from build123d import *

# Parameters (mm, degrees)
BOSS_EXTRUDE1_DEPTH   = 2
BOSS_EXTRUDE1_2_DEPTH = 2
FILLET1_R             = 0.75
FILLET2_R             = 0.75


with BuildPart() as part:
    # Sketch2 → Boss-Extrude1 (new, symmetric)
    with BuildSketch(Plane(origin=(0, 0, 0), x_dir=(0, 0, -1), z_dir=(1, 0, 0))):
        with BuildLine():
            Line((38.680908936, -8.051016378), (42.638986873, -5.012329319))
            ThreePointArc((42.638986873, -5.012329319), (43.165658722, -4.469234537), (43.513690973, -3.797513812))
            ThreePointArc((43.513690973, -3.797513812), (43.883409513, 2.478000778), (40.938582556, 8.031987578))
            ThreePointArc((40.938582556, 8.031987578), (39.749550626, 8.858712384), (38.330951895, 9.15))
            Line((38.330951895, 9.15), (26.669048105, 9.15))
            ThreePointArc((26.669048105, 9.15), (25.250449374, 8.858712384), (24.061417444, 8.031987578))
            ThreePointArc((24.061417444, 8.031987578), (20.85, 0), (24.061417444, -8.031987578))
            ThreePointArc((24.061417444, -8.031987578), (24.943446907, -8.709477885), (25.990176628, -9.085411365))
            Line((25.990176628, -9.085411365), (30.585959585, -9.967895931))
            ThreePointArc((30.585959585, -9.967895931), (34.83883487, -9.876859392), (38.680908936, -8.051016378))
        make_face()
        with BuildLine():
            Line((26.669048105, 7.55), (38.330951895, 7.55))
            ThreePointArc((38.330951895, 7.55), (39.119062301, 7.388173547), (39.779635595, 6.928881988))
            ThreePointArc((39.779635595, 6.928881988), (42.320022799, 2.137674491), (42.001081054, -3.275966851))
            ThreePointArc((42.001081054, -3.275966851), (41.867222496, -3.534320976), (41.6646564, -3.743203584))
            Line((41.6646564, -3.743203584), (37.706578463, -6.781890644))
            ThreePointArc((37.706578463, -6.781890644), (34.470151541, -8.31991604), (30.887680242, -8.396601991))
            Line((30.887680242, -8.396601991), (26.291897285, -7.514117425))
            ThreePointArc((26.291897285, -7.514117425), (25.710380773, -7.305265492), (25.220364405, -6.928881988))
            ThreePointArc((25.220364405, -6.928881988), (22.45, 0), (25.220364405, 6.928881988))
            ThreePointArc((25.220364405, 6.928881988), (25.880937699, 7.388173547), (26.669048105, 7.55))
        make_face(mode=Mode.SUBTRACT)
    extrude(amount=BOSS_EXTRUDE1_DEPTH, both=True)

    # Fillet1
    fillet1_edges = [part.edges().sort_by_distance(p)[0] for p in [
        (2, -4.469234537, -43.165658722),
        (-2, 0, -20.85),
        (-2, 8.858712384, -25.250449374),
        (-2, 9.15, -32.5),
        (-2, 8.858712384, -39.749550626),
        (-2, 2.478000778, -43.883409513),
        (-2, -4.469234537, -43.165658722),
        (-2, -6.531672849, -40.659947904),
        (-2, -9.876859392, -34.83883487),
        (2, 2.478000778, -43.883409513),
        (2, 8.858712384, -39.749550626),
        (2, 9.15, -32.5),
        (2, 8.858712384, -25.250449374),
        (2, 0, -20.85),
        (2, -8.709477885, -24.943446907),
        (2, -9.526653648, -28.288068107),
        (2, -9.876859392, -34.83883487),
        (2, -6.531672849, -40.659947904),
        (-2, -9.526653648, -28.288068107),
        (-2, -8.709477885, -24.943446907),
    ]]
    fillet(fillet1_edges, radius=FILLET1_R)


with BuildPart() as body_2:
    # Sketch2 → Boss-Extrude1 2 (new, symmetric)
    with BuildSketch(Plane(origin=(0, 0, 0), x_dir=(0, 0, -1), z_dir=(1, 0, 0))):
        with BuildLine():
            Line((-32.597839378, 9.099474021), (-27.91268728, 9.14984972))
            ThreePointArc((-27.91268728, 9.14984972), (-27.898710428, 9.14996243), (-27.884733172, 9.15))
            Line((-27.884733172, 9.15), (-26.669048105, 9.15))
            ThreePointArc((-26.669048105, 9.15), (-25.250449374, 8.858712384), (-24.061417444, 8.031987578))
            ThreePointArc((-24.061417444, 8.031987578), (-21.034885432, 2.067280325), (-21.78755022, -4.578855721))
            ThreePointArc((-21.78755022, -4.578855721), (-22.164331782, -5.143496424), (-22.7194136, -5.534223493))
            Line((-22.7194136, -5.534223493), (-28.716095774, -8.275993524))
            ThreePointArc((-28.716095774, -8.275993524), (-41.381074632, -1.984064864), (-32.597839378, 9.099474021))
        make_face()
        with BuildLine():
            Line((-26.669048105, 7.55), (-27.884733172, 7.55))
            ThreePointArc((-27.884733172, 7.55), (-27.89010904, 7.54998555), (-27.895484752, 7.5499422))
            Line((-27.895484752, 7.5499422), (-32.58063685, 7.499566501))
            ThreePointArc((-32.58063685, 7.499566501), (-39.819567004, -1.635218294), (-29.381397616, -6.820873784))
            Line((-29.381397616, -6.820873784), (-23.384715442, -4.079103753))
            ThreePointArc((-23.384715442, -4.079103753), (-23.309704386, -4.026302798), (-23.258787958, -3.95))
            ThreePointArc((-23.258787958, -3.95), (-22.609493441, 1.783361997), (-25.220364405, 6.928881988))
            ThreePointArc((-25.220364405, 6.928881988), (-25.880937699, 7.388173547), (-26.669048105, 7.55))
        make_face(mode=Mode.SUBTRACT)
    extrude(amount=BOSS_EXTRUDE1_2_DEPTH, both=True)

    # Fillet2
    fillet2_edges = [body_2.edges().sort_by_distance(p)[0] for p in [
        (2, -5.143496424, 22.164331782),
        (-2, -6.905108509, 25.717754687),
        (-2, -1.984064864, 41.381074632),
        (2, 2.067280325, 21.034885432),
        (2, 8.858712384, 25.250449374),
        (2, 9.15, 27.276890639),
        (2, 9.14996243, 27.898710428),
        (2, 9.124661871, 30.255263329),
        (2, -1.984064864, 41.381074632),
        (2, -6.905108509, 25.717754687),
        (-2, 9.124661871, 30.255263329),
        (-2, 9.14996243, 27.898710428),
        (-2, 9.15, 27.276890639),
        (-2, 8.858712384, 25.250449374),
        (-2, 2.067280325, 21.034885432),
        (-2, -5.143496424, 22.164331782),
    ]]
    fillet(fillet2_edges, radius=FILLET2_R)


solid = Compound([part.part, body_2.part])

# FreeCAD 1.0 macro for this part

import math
import FreeCAD as App
import Part
import Sketcher
from FreeCAD import Vector


def edges_at(feature, points):
    """Names of the edges that pass closest to the given points."""
    edges = feature.Shape.Edges
    near = lambda p: min(range(len(edges)), key=lambda i: edges[i].distToShape(Part.Vertex(*p))[0])
    return sorted({f"Edge{near(p) + 1}" for p in points})

doc = App.newDocument("Part")
body = doc.addObject("PartDesign::Body", "Body")

sketch1 = body.newObject("Sketcher::SketchObject", "Sketch")
sketch1.AttachmentSupport = (doc.getObject("YZ_Plane"), [""])
sketch1.MapMode = "FlatFace"
sketch1.addGeometry([
    Part.LineSegment(Vector(-8.1, -38.7, 0), Vector(-5, -42.6, 0)),
    Part.ArcOfCircle(Part.Circle(Vector(-2.9, -41.1, 0), Vector(0, 0, 1), 2.6), math.radians(-142), math.radians(-109)),
    Part.ArcOfCircle(Part.Circle(Vector(0, -32.5, 0), Vector(0, 0, 1), 11.7), math.radians(-109), math.radians(-46)),
    Part.ArcOfCircle(Part.Circle(Vector(5.5, -38.3, 0), Vector(0, 0, 1), 3.6), math.radians(-46), math.radians(0)),
    Part.LineSegment(Vector(9.2, -38.3, 0), Vector(9.2, -26.7, 0)),
    Part.ArcOfCircle(Part.Circle(Vector(5.5, -26.7, 0), Vector(0, 0, 1), 3.6), math.radians(0), math.radians(46)),
    Part.ArcOfCircle(Part.Circle(Vector(0, -32.5, 0), Vector(0, 0, 1), 11.7), math.radians(46), math.radians(134)),
    Part.ArcOfCircle(Part.Circle(Vector(-5.5, -26.7, 0), Vector(0, 0, 1), 3.6), math.radians(134), math.radians(169)),
    Part.LineSegment(Vector(-9.1, -26, 0), Vector(-10, -30.6, 0)),
    Part.ArcOfCircle(Part.Circle(Vector(0, -32.5, 0), Vector(0, 0, 1), 10.2), math.radians(169), math.radians(218)),
    Part.ArcOfCircle(Part.Circle(Vector(5.6, -26.7, 0), Vector(0, 0, 1), 2), math.radians(0), math.radians(46)),
    Part.LineSegment(Vector(7.5, -26.7, 0), Vector(7.5, -38.3, 0)),
    Part.ArcOfCircle(Part.Circle(Vector(5.6, -38.3, 0), Vector(0, 0, 1), 2), math.radians(-46), math.radians(0)),
    Part.ArcOfCircle(Part.Circle(Vector(0, -32.5, 0), Vector(0, 0, 1), 10.1), math.radians(-109), math.radians(-46)),
    Part.ArcOfCircle(Part.Circle(Vector(-3, -41.1, 0), Vector(0, 0, 1), 1), math.radians(-142), math.radians(-109)),
    Part.LineSegment(Vector(-3.7, -41.7, 0), Vector(-6.8, -37.7, 0)),
    Part.ArcOfCircle(Part.Circle(Vector(0, -32.5, 0), Vector(0, 0, 1), 8.5), math.radians(169), math.radians(218)),
    Part.LineSegment(Vector(-8.4, -30.9, 0), Vector(-7.5, -26.3, 0)),
    Part.ArcOfCircle(Part.Circle(Vector(-5.6, -26.7, 0), Vector(0, 0, 1), 2), math.radians(134), math.radians(169)),
    Part.ArcOfCircle(Part.Circle(Vector(0, -32.5, 0), Vector(0, 0, 1), 10.1), math.radians(46), math.radians(134)),
], False)
sketch1.addConstraint([
    Sketcher.Constraint("Tangent", 0, 2, 1, 1),
    Sketcher.Constraint("Tangent", 1, 2, 2, 1),
    Sketcher.Constraint("Tangent", 2, 2, 3, 1),
    Sketcher.Constraint("Tangent", 3, 2, 4, 1),
    Sketcher.Constraint("Tangent", 4, 2, 5, 1),
    Sketcher.Constraint("Tangent", 5, 2, 6, 1),
    Sketcher.Constraint("Tangent", 6, 2, 7, 1),
    Sketcher.Constraint("Tangent", 7, 2, 8, 1),
    Sketcher.Constraint("Tangent", 8, 2, 9, 1),
    Sketcher.Constraint("Tangent", 9, 2, 0, 1),
    Sketcher.Constraint("Tangent", 10, 1, 11, 1),
    Sketcher.Constraint("Tangent", 11, 2, 12, 2),
    Sketcher.Constraint("Tangent", 12, 1, 13, 2),
    Sketcher.Constraint("Tangent", 13, 1, 14, 2),
    Sketcher.Constraint("Tangent", 14, 1, 15, 1),
    Sketcher.Constraint("Tangent", 15, 2, 16, 2),
    Sketcher.Constraint("Tangent", 16, 1, 17, 1),
    Sketcher.Constraint("Tangent", 17, 2, 18, 2),
    Sketcher.Constraint("Tangent", 18, 1, 19, 2),
    Sketcher.Constraint("Tangent", 19, 1, 10, 2),
    Sketcher.Constraint("Vertical", 4),
    Sketcher.Constraint("Vertical", 11),
    Sketcher.Constraint("Coincident", 6, 3, 2, 3),
    Sketcher.Constraint("Coincident", 9, 3, 2, 3),
    Sketcher.Constraint("Coincident", 10, 3, 5, 3),
    Sketcher.Constraint("Coincident", 12, 3, 3, 3),
    Sketcher.Constraint("Coincident", 13, 3, 2, 3),
    Sketcher.Constraint("Coincident", 14, 3, 1, 3),
    Sketcher.Constraint("Coincident", 16, 3, 2, 3),
    Sketcher.Constraint("Coincident", 18, 3, 7, 3),
    Sketcher.Constraint("Coincident", 19, 3, 2, 3),
    Sketcher.Constraint("Equal", 3, 5),
    Sketcher.Constraint("Equal", 2, 6),
    Sketcher.Constraint("Equal", 5, 7),
    Sketcher.Constraint("Symmetric", 5, 3, 7, 3, -2),
    Sketcher.Constraint("Parallel", 0, 15),
    Sketcher.Constraint("Radius", 10, 2.0),
    Sketcher.Constraint("Radius", 14, 1.0),
    Sketcher.Constraint("Radius", 1, 2.6),
    Sketcher.Constraint("Radius", 2, 11.65),
    Sketcher.Constraint("Radius", 9, 10.15),
    Sketcher.Constraint("DistanceY", 2, 3, -1, 1, 32.5),
    Sketcher.Constraint("DistanceX", 1, 3, 3, 3, 8.5),
    Sketcher.Constraint("DistanceX", 7, 3, 5, 3, 11.1),
])
pad1 = body.newObject("PartDesign::Pad", "Pad")
pad1.Profile = sketch1
pad1.Length = 4
pad1.Midplane = True
doc.recompute()

fillet = body.newObject("PartDesign::Fillet", "Fillet")
fillet.Base = (pad1, edges_at(pad1, [
    (2, -4.469, -43.166),
    (-2, 0, -20.85),
    (-2, 8.859, -25.25),
    (-2, 9.15, -32.5),
    (-2, 8.859, -39.75),
    (-2, 2.478, -43.883),
    (-2, -4.469, -43.166),
    (-2, -6.532, -40.66),
    (-2, -9.877, -34.839),
    (2, 2.478, -43.883),
    (2, 8.859, -39.75),
    (2, 9.15, -32.5),
    (2, 8.859, -25.25),
    (2, 0, -20.85),
    (2, -8.709, -24.943),
    (2, -9.527, -28.288),
    (2, -9.877, -34.839),
    (2, -6.532, -40.66),
    (-2, -9.527, -28.288),
    (-2, -8.709, -24.943),
]))
fillet.Radius = 0.75
body2 = doc.addObject("PartDesign::Body", "Body001")

sketch2 = body2.newObject("Sketcher::SketchObject", "Sketch001")
sketch2.AttachmentSupport = (doc.getObject("YZ_Plane001"), [""])
sketch2.MapMode = "FlatFace"
sketch2.addGeometry([
    Part.LineSegment(Vector(9.15, 27.913, 0), Vector(9.099, 32.598, 0)),
    Part.ArcOfCircle(Part.Circle(Vector(0, 32.5, 0), Vector(0, 0, 1), 9.1), math.radians(1), math.radians(205)),
    Part.LineSegment(Vector(-8.276, 28.716, 0), Vector(-5.534, 22.719, 0)),
    Part.ArcOfCircle(Part.Circle(Vector(-3.852, 23.489, 0), Vector(0, 0, 1), 1.85), math.radians(-155), math.radians(-113)),
    Part.ArcOfCircle(Part.Circle(Vector(0, 32.5, 0), Vector(0, 0, 1), 11.65), math.radians(-113), math.radians(-46)),
    Part.ArcOfCircle(Part.Circle(Vector(5.55, 26.669, 0), Vector(0, 0, 1), 3.6), math.radians(-46), math.radians(0)),
    Part.LineSegment(Vector(9.15, 26.669, 0), Vector(9.15, 27.885, 0)),
    Part.ArcOfCircle(Part.Circle(Vector(6.55, 27.885, 0), Vector(0, 0, 1), 2.6), math.radians(0), math.radians(0.62)),
    Part.ArcOfCircle(Part.Circle(Vector(5.55, 26.669, 0), Vector(0, 0, 1), 2), math.radians(-46), math.radians(0)),
    Part.ArcOfCircle(Part.Circle(Vector(0, 32.5, 0), Vector(0, 0, 1), 10.05), math.radians(-113), math.radians(-46)),
    Part.ArcOfCircle(Part.Circle(Vector(-3.852, 23.489, 0), Vector(0, 0, 1), 0.25), math.radians(-155), math.radians(-113)),
    Part.LineSegment(Vector(-4.079, 23.385, 0), Vector(-6.821, 29.381, 0)),
    Part.ArcOfCircle(Part.Circle(Vector(0, 32.5, 0), Vector(0, 0, 1), 7.5), math.radians(1), math.radians(205)),
    Part.LineSegment(Vector(7.5, 32.581, 0), Vector(7.55, 27.895, 0)),
    Part.ArcOfCircle(Part.Circle(Vector(6.55, 27.885, 0), Vector(0, 0, 1), 1), math.radians(0), math.radians(0.62)),
    Part.LineSegment(Vector(7.55, 27.885, 0), Vector(7.55, 26.669, 0)),
], False)
sketch2.addConstraint([
    Sketcher.Constraint("Tangent", 0, 2, 1, 1),
    Sketcher.Constraint("Tangent", 1, 2, 2, 1),
    Sketcher.Constraint("Tangent", 2, 2, 3, 1),
    Sketcher.Constraint("Tangent", 3, 2, 4, 1),
    Sketcher.Constraint("Tangent", 4, 2, 5, 1),
    Sketcher.Constraint("Tangent", 5, 2, 6, 1),
    Sketcher.Constraint("Tangent", 6, 2, 7, 1),
    Sketcher.Constraint("Tangent", 7, 2, 0, 1),
    Sketcher.Constraint("Tangent", 8, 1, 9, 2),
    Sketcher.Constraint("Tangent", 9, 1, 10, 2),
    Sketcher.Constraint("Tangent", 10, 1, 11, 1),
    Sketcher.Constraint("Tangent", 11, 2, 12, 2),
    Sketcher.Constraint("Tangent", 12, 1, 13, 1),
    Sketcher.Constraint("Tangent", 13, 2, 14, 2),
    Sketcher.Constraint("Tangent", 14, 1, 15, 1),
    Sketcher.Constraint("Tangent", 15, 2, 8, 2),
    Sketcher.Constraint("Vertical", 6),
    Sketcher.Constraint("Vertical", 15),
    Sketcher.Constraint("Coincident", 4, 3, 1, 3),
    Sketcher.Constraint("Coincident", 8, 3, 5, 3),
    Sketcher.Constraint("Coincident", 9, 3, 1, 3),
    Sketcher.Constraint("Coincident", 10, 3, 3, 3),
    Sketcher.Constraint("Coincident", 12, 3, 1, 3),
    Sketcher.Constraint("PointOnObject", 1, 3, -2),
    Sketcher.Constraint("Parallel", 2, 11),
    Sketcher.Constraint("Parallel", 0, 13),
    Sketcher.Constraint("Horizontal", 7, 3, 14, 3),
    Sketcher.Constraint("Radius", 8, 2.0),
    Sketcher.Constraint("Radius", 1, 9.1),
    Sketcher.Constraint("Radius", 5, 3.6),
    Sketcher.Constraint("Radius", 3, 1.85),
    Sketcher.Constraint("Radius", 4, 11.65),
    Sketcher.Constraint("DistanceY", -1, 1, 1, 3, 32.5),
    Sketcher.Constraint("DistanceX", -1, 1, 5, 3, 5.55),
    Sketcher.Constraint("DistanceX", 9, 1, -1, 1, 3.95),
    Sketcher.Constraint("Radius", 14, 0.999991),
    Sketcher.Constraint("DistanceY", 6, 1, 6, 2, 1.215685),
])
pad2 = body2.newObject("PartDesign::Pad", "Pad001")
pad2.Profile = sketch2
pad2.Length = 4
pad2.Midplane = True
doc.recompute()

fillet2 = body2.newObject("PartDesign::Fillet", "Fillet001")
fillet2.Base = (pad2, edges_at(pad2, [
    (2, -5.143, 22.164),
    (-2, -6.905, 25.718),
    (-2, -1.984, 41.381),
    (2, 2.067, 21.035),
    (2, 8.859, 25.25),
    (2, 9.15, 27.277),
    (2, 9.15, 27.899),
    (2, 9.125, 30.255),
    (2, -1.984, 41.381),
    (2, -6.905, 25.718),
    (-2, 9.125, 30.255),
    (-2, 9.15, 27.899),
    (-2, 9.15, 27.277),
    (-2, 8.859, 25.25),
    (-2, 2.067, 21.035),
    (-2, -5.143, 22.164),
]))
fillet2.Radius = 0.75

doc.recompute()
